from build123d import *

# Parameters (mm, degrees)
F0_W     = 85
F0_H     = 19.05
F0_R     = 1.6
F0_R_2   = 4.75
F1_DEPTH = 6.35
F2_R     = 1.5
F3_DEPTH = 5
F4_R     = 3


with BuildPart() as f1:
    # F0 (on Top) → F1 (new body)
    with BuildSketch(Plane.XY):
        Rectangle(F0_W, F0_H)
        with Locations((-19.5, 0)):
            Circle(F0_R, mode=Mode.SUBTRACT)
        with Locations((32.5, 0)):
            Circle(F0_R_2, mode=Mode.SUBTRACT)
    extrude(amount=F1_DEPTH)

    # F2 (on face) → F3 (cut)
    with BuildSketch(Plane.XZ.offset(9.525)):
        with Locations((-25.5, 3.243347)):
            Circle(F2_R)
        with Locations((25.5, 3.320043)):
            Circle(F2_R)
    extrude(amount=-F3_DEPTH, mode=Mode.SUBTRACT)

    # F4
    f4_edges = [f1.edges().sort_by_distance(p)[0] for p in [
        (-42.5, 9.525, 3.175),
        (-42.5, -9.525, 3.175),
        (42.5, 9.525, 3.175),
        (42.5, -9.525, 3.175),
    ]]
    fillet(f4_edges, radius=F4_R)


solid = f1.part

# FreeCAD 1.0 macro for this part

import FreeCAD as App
import Part
import Sketcher
Q = App.Units.Quantity


def edges_at(feature, points):
    """Names of the edges that pass closest to the given points."""
    edges = feature.Shape.Edges
    near = lambda p: min(range(len(edges)), key=lambda i: edges[i].distToShape(Part.Vertex(*p))[0])
    return sorted({f"Edge{near(p) + 1}" for p in points})


def add_polygon(sketch, points):
    """Adds a closed chain of lines whose ends are joined by coincident constraints."""
    first, n = sketch.GeometryCount, len(points)
    for a, b in zip(points, points[1:] + points[:1]):
        sketch.addGeometry(Part.LineSegment(App.Vector(*a, 0), App.Vector(*b, 0)), False)
    for i in range(n):
        sketch.addConstraint(Sketcher.Constraint("Coincident", first + i, 2, first + (i + 1) % n, 1))

doc = App.newDocument("Part")
body = doc.addObject("PartDesign::Body", "Body")

# Sketch on XY plane
sketch1 = body.newObject("Sketcher::SketchObject", "Sketch")
sketch1.AttachmentSupport = (doc.getObject("XY_Plane"), [""])
sketch1.MapMode = "FlatFace"
add_polygon(sketch1, [(-42.5, 9.5), (-42.5, -9.5), (42.5, -9.5), (42.5, 9.5)])  # lines 0-3
sketch1.addGeometry(Part.Circle(App.Vector(-19.5, 0, 0), App.Vector(0, 0, 1), 1.6), False)  # 4
sketch1.addGeometry(Part.Circle(App.Vector(32.5, 0, 0), App.Vector(0, 0, 1), 4.8), False)  # 5
sketch1.addConstraint(Sketcher.Constraint("Vertical", 0))
sketch1.addConstraint(Sketcher.Constraint("Horizontal", 1))
sketch1.addConstraint(Sketcher.Constraint("Vertical", 2))
sketch1.addConstraint(Sketcher.Constraint("Horizontal", 3))
sketch1.addConstraint(Sketcher.Constraint("Symmetric", 0, 2, 2, 2, -1, 1))
sketch1.addConstraint(Sketcher.Constraint("PointOnObject", 4, 3, -1))
sketch1.addConstraint(Sketcher.Constraint("PointOnObject", 5, 3, -1))
sketch1.addConstraint(Sketcher.Constraint("Diameter", 4, Q("3.2 mm")))
sketch1.addConstraint(Sketcher.Constraint("Diameter", 5, Q("9.5 mm")))
sketch1.addConstraint(Sketcher.Constraint("DistanceX", 1, 1, 1, 2, Q("85 mm")))
sketch1.addConstraint(Sketcher.Constraint("DistanceX", 4, 3, 5, 3, Q("52 mm")))
sketch1.addConstraint(Sketcher.Constraint("DistanceX", 0, 2, 4, 3, Q("23 mm")))
sketch1.addConstraint(Sketcher.Constraint("DistanceY", 0, 2, 0, 1, Q("19.05 mm")))
pad1 = body.newObject("PartDesign::Pad", "Pad")
pad1.Profile = sketch1
pad1.Length = 6.35

# Sketch on XZ plane
sketch2 = body.newObject("Sketcher::SketchObject", "Sketch001")
sketch2.AttachmentSupport = (doc.getObject("XZ_Plane"), [""])
sketch2.MapMode = "FlatFace"
sketch2.AttachmentOffset = App.Placement(App.Vector(0, 0, 9.525), App.Rotation())
sketch2.addGeometry(Part.Circle(App.Vector(-25.5, 3.2, 0), App.Vector(0, 0, 1), 1.5), False)
sketch2.addGeometry(Part.Circle(App.Vector(25.5, 3.3, 0), App.Vector(0, 0, 1), 1.5), False)
sketch2.addConstraint(Sketcher.Constraint("Equal", 0, 1))
sketch2.addConstraint(Sketcher.Constraint("Diameter", 0, Q("3 mm")))
sketch2.addConstraint(Sketcher.Constraint("DistanceX", 0, 3, 1, 3, Q("51 mm")))
sketch2.addConstraint(Sketcher.Constraint("DistanceX", 0, 3, -1, 1, Q("25.5 mm")))
sketch2.addConstraint(Sketcher.Constraint("DistanceY", -1, 1, 0, 3, Q("3.243347 mm")))
sketch2.addConstraint(Sketcher.Constraint("DistanceY", -1, 1, 1, 3, Q("3.320043 mm")))
pocket1 = body.newObject("PartDesign::Pocket", "Pocket")
pocket1.Profile = sketch2
pocket1.Length = 5
doc.recompute()

fillet = body.newObject("PartDesign::Fillet", "Fillet")
fillet.Base = (pocket1, edges_at(pocket1, [
    (-42.5, 9.525, 3.175),
    (-42.5, -9.525, 3.175),
    (42.5, 9.525, 3.175),
    (42.5, -9.525, 3.175),
]))
fillet.Radius = 3

doc.recompute()
